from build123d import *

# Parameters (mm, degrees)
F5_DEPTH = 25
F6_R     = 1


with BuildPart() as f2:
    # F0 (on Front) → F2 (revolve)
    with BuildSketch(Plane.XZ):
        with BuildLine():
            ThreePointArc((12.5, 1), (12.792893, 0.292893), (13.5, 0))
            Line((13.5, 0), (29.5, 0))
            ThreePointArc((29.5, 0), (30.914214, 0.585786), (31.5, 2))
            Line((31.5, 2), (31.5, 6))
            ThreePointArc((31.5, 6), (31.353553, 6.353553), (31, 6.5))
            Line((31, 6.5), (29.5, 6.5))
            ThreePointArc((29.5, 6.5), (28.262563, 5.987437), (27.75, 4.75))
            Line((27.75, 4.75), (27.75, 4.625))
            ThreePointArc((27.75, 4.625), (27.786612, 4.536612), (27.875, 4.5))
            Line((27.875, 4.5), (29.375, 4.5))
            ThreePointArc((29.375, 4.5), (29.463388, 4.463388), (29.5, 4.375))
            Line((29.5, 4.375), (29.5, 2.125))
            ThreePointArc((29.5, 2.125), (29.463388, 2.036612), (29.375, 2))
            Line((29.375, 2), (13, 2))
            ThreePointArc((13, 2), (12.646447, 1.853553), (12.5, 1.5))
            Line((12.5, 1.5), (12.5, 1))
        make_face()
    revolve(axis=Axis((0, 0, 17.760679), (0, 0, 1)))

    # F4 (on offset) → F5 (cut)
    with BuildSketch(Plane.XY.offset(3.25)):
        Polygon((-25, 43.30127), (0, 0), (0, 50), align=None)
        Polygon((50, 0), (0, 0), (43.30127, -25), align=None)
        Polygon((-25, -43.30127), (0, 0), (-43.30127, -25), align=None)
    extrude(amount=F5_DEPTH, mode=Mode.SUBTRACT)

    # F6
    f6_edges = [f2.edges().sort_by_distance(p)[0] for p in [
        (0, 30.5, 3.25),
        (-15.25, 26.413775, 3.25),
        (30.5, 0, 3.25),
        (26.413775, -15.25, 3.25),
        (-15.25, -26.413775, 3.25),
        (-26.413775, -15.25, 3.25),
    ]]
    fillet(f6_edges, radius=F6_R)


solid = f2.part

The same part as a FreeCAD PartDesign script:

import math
import FreeCAD as App
import Part
import Sketcher

V = App.Vector
Q = App.Units.Quantity


def edges_at(feature, points):
    """Names of the edges that pass closest to the given points."""
    edges = feature.Shape.Edges
    near = lambda p: min(range(len(edges)), key=lambda i: edges[i].distToShape(Part.Vertex(*p))[0])
    return sorted({f"Edge{near(p) + 1}" for p in points})

doc = App.newDocument("Part")
body = doc.addObject("PartDesign::Body", "Body")

sketch1 = body.newObject("Sketcher::SketchObject", "Sketch")
sketch1.AttachmentSupport = (doc.getObject("XZ_Plane"), [""])
sketch1.MapMode = "FlatFace"
sketch1.addGeometry(Part.ArcOfCircle(Part.Circle(V(13.5, 1, 0), V(0, 0, 1), 1), math.radians(180), math.radians(270)), False)
sketch1.addGeometry(Part.LineSegment(V(13.5, 0, 0), V(29.5, 0, 0)), False)
sketch1.addGeometry(Part.ArcOfCircle(Part.Circle(V(29.5, 2, 0), V(0, 0, 1), 2), math.radians(-90), math.radians(0)), False)
sketch1.addGeometry(Part.LineSegment(V(31.5, 2, 0), V(31.5, 6, 0)), False)
sketch1.addGeometry(Part.ArcOfCircle(Part.Circle(V(31, 6, 0), V(0, 0, 1), 0.5), math.radians(0), math.radians(90)), False)
sketch1.addGeometry(Part.LineSegment(V(31, 6.5, 0), V(29.5, 6.5, 0)), False)
sketch1.addGeometry(Part.ArcOfCircle(Part.Circle(V(29.5, 4.75, 0), V(0, 0, 1), 1.75), math.radians(90), math.radians(180)), False)
sketch1.addGeometry(Part.LineSegment(V(27.75, 4.75, 0), V(27.75, 4.62, 0)), False)
sketch1.addGeometry(Part.ArcOfCircle(Part.Circle(V(27.88, 4.63, 0), V(0, 0, 1), 0.13), math.radians(-180), math.radians(-90)), False)
sketch1.addGeometry(Part.LineSegment(V(27.88, 4.5, 0), V(29.38, 4.5, 0)), False)
sketch1.addGeometry(Part.ArcOfCircle(Part.Circle(V(29.37, 4.37, 0), V(0, 0, 1), 0.13), math.radians(0), math.radians(90)), False)
sketch1.addGeometry(Part.LineSegment(V(29.5, 4.38, 0), V(29.5, 2.12, 0)), False)
sketch1.addGeometry(Part.ArcOfCircle(Part.Circle(V(29.37, 2.13, 0), V(0, 0, 1), 0.13), math.radians(-90), math.radians(0)), False)
sketch1.addGeometry(Part.LineSegment(V(29.38, 2, 0), V(13, 2, 0)), False)
sketch1.addGeometry(Part.ArcOfCircle(Part.Circle(V(13, 1.5, 0), V(0, 0, 1), 0.5), math.radians(90), math.radians(180)), False)
sketch1.addGeometry(Part.LineSegment(V(12.5, 1.5, 0), V(12.5, 1, 0)), False)
sketch1.addConstraint(Sketcher.Constraint("Tangent", 0, 2, 1, 1))
sketch1.addConstraint(Sketcher.Constraint("Tangent", 1, 2, 2, 1))
sketch1.addConstraint(Sketcher.Constraint("Tangent", 2, 2, 3, 1))
sketch1.addConstraint(Sketcher.Constraint("Coincident", 3, 2, 4, 1))
sketch1.addConstraint(Sketcher.Constraint("Coincident", 4, 2, 5, 1))
sketch1.addConstraint(Sketcher.Constraint("Tangent", 5, 2, 6, 1))
sketch1.addConstraint(Sketcher.Constraint("Tangent", 6, 2, 7, 1))
sketch1.addConstraint(Sketcher.Constraint("Coincident", 7, 2, 8, 1))
sketch1.addConstraint(Sketcher.Constraint("Coincident", 8, 2, 9, 1))
sketch1.addConstraint(Sketcher.Constraint("Coincident", 9, 2, 10, 2))
sketch1.addConstraint(Sketcher.Constraint("Coincident", 10, 1, 11, 1))
sketch1.addConstraint(Sketcher.Constraint("Coincident", 11, 2, 12, 2))
sketch1.addConstraint(Sketcher.Constraint("Coincident", 12, 1, 13, 1))
sketch1.addConstraint(Sketcher.Constraint("Coincident", 13, 2, 14, 1))
sketch1.addConstraint(Sketcher.Constraint("Coincident", 14, 2, 15, 1))
sketch1.addConstraint(Sketcher.Constraint("Tangent", 15, 2, 0, 1))
sketch1.addConstraint(Sketcher.Constraint("Horizontal", 1))
sketch1.addConstraint(Sketcher.Constraint("Vertical", 3))
sketch1.addConstraint(Sketcher.Constraint("Horizontal", 5))
sketch1.addConstraint(Sketcher.Constraint("Vertical", 7))
sketch1.addConstraint(Sketcher.Constraint("Horizontal", 9))
sketch1.addConstraint(Sketcher.Constraint("Vertical", 11))
sketch1.addConstraint(Sketcher.Constraint("Horizontal", 13))
sketch1.addConstraint(Sketcher.Constraint("Vertical", 15))
sketch1.addConstraint(Sketcher.Constraint("Equal", 8, 10))
sketch1.addConstraint(Sketcher.Constraint("Equal", 10, 12))
sketch1.addConstraint(Sketcher.Constraint("Equal", 4, 14))
sketch1.addConstraint(Sketcher.Constraint("PointOnObject", 0, 2, -1))
sketch1.addConstraint(Sketcher.Constraint("Horizontal", 4, 3, 3, 2))
sketch1.addConstraint(Sketcher.Constraint("Horizontal", 8, 3, 7, 2))
sketch1.addConstraint(Sketcher.Constraint("Horizontal", 12, 3, 11, 2))
sketch1.addConstraint(Sketcher.Constraint("Horizontal", 2, 2, 12, 1))
sketch1.addConstraint(Sketcher.Constraint("Vertical", 2, 3, 6, 3))
sketch1.addConstraint(Sketcher.Constraint("Vertical", 12, 3, 9, 2))
sketch1.addConstraint(Sketcher.Constraint("Vertical", 5, 2, 10, 1))
sketch1.addConstraint(Sketcher.Constraint("Vertical", 9, 2, 12, 1))
sketch1.addConstraint(Sketcher.Constraint("Vertical", 14, 3, 13, 2))
sketch1.addConstraint(Sketcher.Constraint("Equal", 5, 9))
sketch1.addConstraint(Sketcher.Constraint("Radius", 0, Q("0.999999 mm")))
sketch1.addConstraint(Sketcher.Constraint("Radius", 2, Q("1.999999 mm")))
sketch1.addConstraint(Sketcher.Constraint("Radius", 4, Q("0.500001 mm")))
sketch1.addConstraint(Sketcher.Constraint("DistanceX", 1, 1, 1, 2, Q("16 mm")))
sketch1.addConstraint(Sketcher.Constraint("DistanceY", 3, 1, 3, 2, Q("4 mm")))
sketch1.addConstraint(Sketcher.Constraint("Radius", 6, Q("1.75 mm")))
sketch1.addConstraint(Sketcher.Constraint("DistanceX", 5, 2, 5, 1, Q("1.5 mm")))
sketch1.addConstraint(Sketcher.Constraint("DistanceY", 15, 2, 15, 1, Q("0.5 mm")))
sketch1.addConstraint(Sketcher.Constraint("DistanceX", -1, 1, 4, 3, Q("30.999999 mm")))
sketch1.addConstraint(Sketcher.Constraint("Radius", 8, Q("0.125001 mm")))
sketch1.addConstraint(Sketcher.Constraint("DistanceY", 11, 2, 11, 1, Q("2.25 mm")))
sketch1.addConstraint(Sketcher.Constraint("DistanceY", -1, 1, 8, 2, Q("4.5 mm")))
revolution = body.newObject("PartDesign::Revolution", "Revolution")
revolution.Profile = sketch1
revolution.ReferenceAxis = (sketch1, ["V_Axis"])
revolution.Angle = 360

sketch2 = body.newObject("Sketcher::SketchObject", "Sketch001")
sketch2.AttachmentSupport = (doc.getObject("XY_Plane"), [""])
sketch2.MapMode = "FlatFace"
sketch2.AttachmentOffset = App.Placement(V(0, 0, 3.25), App.Rotation())
sketch2.addGeometry(Part.LineSegment(V(-25, 43, 0), V(0, 0, 0)), False)
sketch2.addGeometry(Part.LineSegment(V(0, 0, 0), V(0, 50, 0)), False)
sketch2.addGeometry(Part.LineSegment(V(0, 50, 0), V(-25, 43, 0)), False)
sketch2.addGeometry(Part.LineSegment(V(50, 0, 0), V(0, 0, 0)), False)
sketch2.addGeometry(Part.LineSegment(V(0, 0, 0), V(43, -25, 0)), False)
sketch2.addGeometry(Part.LineSegment(V(43, -25, 0), V(50, 0, 0)), False)
sketch2.addGeometry(Part.LineSegment(V(-25, -43, 0), V(0, 0, 0)), False)
sketch2.addGeometry(Part.LineSegment(V(0, 0, 0), V(-43, -25, 0)), False)
sketch2.addGeometry(Part.LineSegment(V(-43, -25, 0), V(-25, -43, 0)), False)
sketch2.addConstraint(Sketcher.Constraint("Coincident", 0, 2, 1, 1))
sketch2.addConstraint(Sketcher.Constraint("Coincident", 1, 2, 2, 1))
sketch2.addConstraint(Sketcher.Constraint("Coincident", 2, 2, 0, 1))
sketch2.addConstraint(Sketcher.Constraint("Coincident", 3, 2, 4, 1))
sketch2.addConstraint(Sketcher.Constraint("Coincident", 4, 2, 5, 1))
sketch2.addConstraint(Sketcher.Constraint("Coincident", 5, 2, 3, 1))
sketch2.addConstraint(Sketcher.Constraint("Coincident", 6, 2, 7, 1))
sketch2.addConstraint(Sketcher.Constraint("Coincident", 7, 2, 8, 1))
sketch2.addConstraint(Sketcher.Constraint("Coincident", 8, 2, 6, 1))
sketch2.addConstraint(Sketcher.Constraint("Vertical", 1))
sketch2.addConstraint(Sketcher.Constraint("Horizontal", 3))
sketch2.addConstraint(Sketcher.Constraint("Coincident", 0, 2, -1, 1))
sketch2.addConstraint(Sketcher.Constraint("Coincident", 3, 2, -1, 1))
sketch2.addConstraint(Sketcher.Constraint("Coincident", 6, 2, -1, 1))
sketch2.addConstraint(Sketcher.Constraint("Symmetric", 4, 2, 7, 2, -2))
sketch2.addConstraint(Sketcher.Constraint("Symmetric", 2, 2, 8, 2, -1))
sketch2.addConstraint(Sketcher.Constraint("Perpendicular", 4, 6))
sketch2.addConstraint(Sketcher.Constraint("Equal", 3, 1))
sketch2.addConstraint(Sketcher.Constraint("Equal", 0, 4))
sketch2.addConstraint(Sketcher.Constraint("Equal", 5, 8))
sketch2.addConstraint(Sketcher.Constraint("DistanceX", 3, 2, 3, 1, Q("50 mm")))
sketch2.addConstraint(Sketcher.Constraint("Angle", 0, Q("-60 deg")))
pocket1 = body.newObject("PartDesign::Pocket", "Pocket")
pocket1.Profile = sketch2
pocket1.Length = 25
pocket1.Reversed = True
doc.recompute()

fillet = body.newObject("PartDesign::Fillet", "Fillet")
fillet.Base = (pocket1, edges_at(pocket1, [
    (0, 30.5, 3.25),
    (-15.25, 26.414, 3.25),
    (30.5, 0, 3.25),
    (26.414, -15.25, 3.25),
    (-15.25, -26.414, 3.25),
    (-26.414, -15.25, 3.25),
]))
fillet.Radius = 1

doc.recompute()
